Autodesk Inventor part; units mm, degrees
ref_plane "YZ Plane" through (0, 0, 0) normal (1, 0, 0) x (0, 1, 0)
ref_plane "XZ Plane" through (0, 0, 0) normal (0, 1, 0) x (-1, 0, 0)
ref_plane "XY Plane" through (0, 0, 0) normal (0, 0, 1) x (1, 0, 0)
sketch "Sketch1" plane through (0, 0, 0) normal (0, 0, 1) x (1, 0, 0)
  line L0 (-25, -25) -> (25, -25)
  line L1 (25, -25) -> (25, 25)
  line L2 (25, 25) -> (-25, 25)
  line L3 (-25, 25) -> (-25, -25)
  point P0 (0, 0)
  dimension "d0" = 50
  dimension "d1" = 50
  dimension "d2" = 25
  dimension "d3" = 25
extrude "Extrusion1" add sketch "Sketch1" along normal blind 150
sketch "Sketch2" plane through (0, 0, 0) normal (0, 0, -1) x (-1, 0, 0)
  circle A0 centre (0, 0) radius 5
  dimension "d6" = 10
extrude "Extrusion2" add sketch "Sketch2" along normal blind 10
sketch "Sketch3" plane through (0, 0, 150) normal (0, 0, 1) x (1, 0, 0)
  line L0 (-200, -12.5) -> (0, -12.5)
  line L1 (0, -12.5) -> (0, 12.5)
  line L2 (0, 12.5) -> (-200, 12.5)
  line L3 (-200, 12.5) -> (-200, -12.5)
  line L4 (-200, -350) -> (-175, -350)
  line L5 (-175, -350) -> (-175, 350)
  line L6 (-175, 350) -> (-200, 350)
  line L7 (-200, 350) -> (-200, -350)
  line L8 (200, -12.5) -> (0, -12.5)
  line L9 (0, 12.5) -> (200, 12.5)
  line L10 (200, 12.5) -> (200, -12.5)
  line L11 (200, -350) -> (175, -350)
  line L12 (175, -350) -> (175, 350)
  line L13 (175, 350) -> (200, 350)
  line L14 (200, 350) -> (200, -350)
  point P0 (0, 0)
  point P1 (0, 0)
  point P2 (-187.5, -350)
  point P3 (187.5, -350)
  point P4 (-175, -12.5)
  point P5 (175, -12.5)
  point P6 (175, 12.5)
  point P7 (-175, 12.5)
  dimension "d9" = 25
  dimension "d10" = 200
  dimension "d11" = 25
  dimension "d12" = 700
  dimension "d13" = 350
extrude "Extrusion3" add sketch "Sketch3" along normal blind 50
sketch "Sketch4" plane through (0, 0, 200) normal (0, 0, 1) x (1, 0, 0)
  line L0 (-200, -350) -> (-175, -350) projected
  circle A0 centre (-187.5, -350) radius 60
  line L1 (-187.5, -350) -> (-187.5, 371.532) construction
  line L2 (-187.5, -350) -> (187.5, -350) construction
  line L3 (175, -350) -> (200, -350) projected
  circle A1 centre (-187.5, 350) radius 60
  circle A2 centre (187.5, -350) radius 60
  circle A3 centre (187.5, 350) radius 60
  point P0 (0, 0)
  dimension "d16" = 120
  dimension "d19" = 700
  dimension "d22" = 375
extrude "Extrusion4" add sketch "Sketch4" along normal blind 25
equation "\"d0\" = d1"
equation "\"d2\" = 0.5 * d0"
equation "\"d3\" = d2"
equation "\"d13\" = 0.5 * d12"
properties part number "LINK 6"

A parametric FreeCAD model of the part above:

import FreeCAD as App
import Part
import Sketcher

V = App.Vector
Q = App.Units.Quantity


def add_polygon(sketch, points):
    """Adds a closed chain of lines whose ends are joined by coincident constraints."""
    first, n = sketch.GeometryCount, len(points)
    for a, b in zip(points, points[1:] + points[:1]):
        sketch.addGeometry(Part.LineSegment(App.Vector(*a, 0), App.Vector(*b, 0)), False)
    for i in range(n):
        sketch.addConstraint(Sketcher.Constraint("Coincident", first + i, 2, first + (i + 1) % n, 1))

doc = App.newDocument("Part")
body = doc.addObject("PartDesign::Body", "Body")

# Sketch on XY plane
sketch1 = body.newObject("Sketcher::SketchObject", "Sketch")
sketch1.AttachmentSupport = (doc.getObject("XY_Plane"), [""])
sketch1.MapMode = "FlatFace"
add_polygon(sketch1, [(-25, 25), (-25, -25), (25, -25), (25, 25)])  # lines 0-3
sketch1.addConstraint(Sketcher.Constraint("Vertical", 0))
sketch1.addConstraint(Sketcher.Constraint("Horizontal", 1))
sketch1.addConstraint(Sketcher.Constraint("Vertical", 2))
sketch1.addConstraint(Sketcher.Constraint("Horizontal", 3))
sketch1.addConstraint(Sketcher.Constraint("Symmetric", 0, 2, 2, 2, -1, 1))
sketch1.addConstraint(Sketcher.Constraint("Equal", 3, 0))
sketch1.addConstraint(Sketcher.Constraint("DistanceX", 1, 1, 1, 2, Q("50 mm")))
pad1 = body.newObject("PartDesign::Pad", "Pad")
pad1.Profile = sketch1
pad1.Length = 150

# Sketch on XY plane
sketch2 = body.newObject("Sketcher::SketchObject", "Sketch001")
sketch2.AttachmentSupport = (doc.getObject("XY_Plane"), [""])
sketch2.MapMode = "FlatFace"
sketch2.addGeometry(Part.Circle(V(0, 0, 0), V(0, 0, 1), 5), False)
sketch2.addConstraint(Sketcher.Constraint("Coincident", 0, 3, -1, 1))
sketch2.addConstraint(Sketcher.Constraint("Diameter", 0, Q("10 mm")))
pad2 = body.newObject("PartDesign::Pad", "Pad001")
pad2.Profile = sketch2
pad2.Length = 10
pad2.Reversed = True

# Sketch on XY plane
sketch3 = body.newObject("Sketcher::SketchObject", "Sketch002")
sketch3.AttachmentSupport = (doc.getObject("XY_Plane"), [""])
sketch3.MapMode = "FlatFace"
sketch3.AttachmentOffset = App.Placement(V(0, 0, 150), App.Rotation())
add_polygon(sketch3, [(-200, -350), (-175, -350), (-175, -12), (175, -12), (175, -350), (200, -350), (200, 350), (175, 350), (175, 12), (-175, 12), (-175, 350), (-200, 350)])  # lines 0-11
sketch3.addConstraint(Sketcher.Constraint("Horizontal", 0))
sketch3.addConstraint(Sketcher.Constraint("Vertical", 1))
sketch3.addConstraint(Sketcher.Constraint("Horizontal", 2))
sketch3.addConstraint(Sketcher.Constraint("Vertical", 3))
sketch3.addConstraint(Sketcher.Constraint("Horizontal", 4))
sketch3.addConstraint(Sketcher.Constraint("Vertical", 5))
sketch3.addConstraint(Sketcher.Constraint("Horizontal", 6))
sketch3.addConstraint(Sketcher.Constraint("Vertical", 7))
sketch3.addConstraint(Sketcher.Constraint("Horizontal", 8))
sketch3.addConstraint(Sketcher.Constraint("Vertical", 9))
sketch3.addConstraint(Sketcher.Constraint("Horizontal", 10))
sketch3.addConstraint(Sketcher.Constraint("Vertical", 11))
sketch3.addConstraint(Sketcher.Constraint("Symmetric", 0, 2, 6, 2, -1, 1))
sketch3.addConstraint(Sketcher.Constraint("Symmetric", 2, 2, 8, 2, -1, 1))
sketch3.addConstraint(Sketcher.Constraint("Symmetric", 4, 2, 10, 2, -1, 1))
sketch3.addConstraint(Sketcher.Constraint("Symmetric", 0, 2, 3, 2, -2))
sketch3.addConstraint(Sketcher.Constraint("DistanceX", 0, 1, 0, 2, Q("25 mm")))
sketch3.addConstraint(Sketcher.Constraint("DistanceX", 2, 1, 2, 2, Q("350 mm")))
sketch3.addConstraint(Sketcher.Constraint("DistanceY", 5, 1, 5, 2, Q("700 mm")))
sketch3.addConstraint(Sketcher.Constraint("DistanceY", 2, 2, 7, 2, Q("25 mm")))
pad3 = body.newObject("PartDesign::Pad", "Pad002")
pad3.Profile = sketch3
pad3.Length = 50

# Sketch on XY plane
sketch4 = body.newObject("Sketcher::SketchObject", "Sketch003")
sketch4.AttachmentSupport = (doc.getObject("XY_Plane"), [""])
sketch4.MapMode = "FlatFace"
sketch4.AttachmentOffset = App.Placement(V(0, 0, 200), App.Rotation())
sketch4.addGeometry(Part.Circle(V(-188, -350, 0), V(0, 0, 1), 60), False)
sketch4.addGeometry(Part.Circle(V(-188, 350, 0), V(0, 0, 1), 60), False)
sketch4.addGeometry(Part.Circle(V(188, -350, 0), V(0, 0, 1), 60), False)
sketch4.addGeometry(Part.Circle(V(188, 350, 0), V(0, 0, 1), 60), False)
sketch4.addConstraint(Sketcher.Constraint("Equal", 0, 1))
sketch4.addConstraint(Sketcher.Constraint("Equal", 1, 2))
sketch4.addConstraint(Sketcher.Constraint("Equal", 2, 3))
sketch4.addConstraint(Sketcher.Constraint("Symmetric", 1, 3, 2, 3, -1, 1))
sketch4.addConstraint(Sketcher.Constraint("Symmetric", 0, 3, 3, 3, -1, 1))
sketch4.addConstraint(Sketcher.Constraint("Symmetric", 0, 3, 2, 3, -2))
sketch4.addConstraint(Sketcher.Constraint("Diameter", 0, Q("120 mm")))
sketch4.addConstraint(Sketcher.Constraint("DistanceY", 0, 3, 1, 3, Q("700 mm")))
sketch4.addConstraint(Sketcher.Constraint("DistanceX", 0, 3, 2, 3, Q("375 mm")))
pad4 = body.newObject("PartDesign::Pad", "Pad003")
pad4.Profile = sketch4
pad4.Length = 25

doc.recompute()
